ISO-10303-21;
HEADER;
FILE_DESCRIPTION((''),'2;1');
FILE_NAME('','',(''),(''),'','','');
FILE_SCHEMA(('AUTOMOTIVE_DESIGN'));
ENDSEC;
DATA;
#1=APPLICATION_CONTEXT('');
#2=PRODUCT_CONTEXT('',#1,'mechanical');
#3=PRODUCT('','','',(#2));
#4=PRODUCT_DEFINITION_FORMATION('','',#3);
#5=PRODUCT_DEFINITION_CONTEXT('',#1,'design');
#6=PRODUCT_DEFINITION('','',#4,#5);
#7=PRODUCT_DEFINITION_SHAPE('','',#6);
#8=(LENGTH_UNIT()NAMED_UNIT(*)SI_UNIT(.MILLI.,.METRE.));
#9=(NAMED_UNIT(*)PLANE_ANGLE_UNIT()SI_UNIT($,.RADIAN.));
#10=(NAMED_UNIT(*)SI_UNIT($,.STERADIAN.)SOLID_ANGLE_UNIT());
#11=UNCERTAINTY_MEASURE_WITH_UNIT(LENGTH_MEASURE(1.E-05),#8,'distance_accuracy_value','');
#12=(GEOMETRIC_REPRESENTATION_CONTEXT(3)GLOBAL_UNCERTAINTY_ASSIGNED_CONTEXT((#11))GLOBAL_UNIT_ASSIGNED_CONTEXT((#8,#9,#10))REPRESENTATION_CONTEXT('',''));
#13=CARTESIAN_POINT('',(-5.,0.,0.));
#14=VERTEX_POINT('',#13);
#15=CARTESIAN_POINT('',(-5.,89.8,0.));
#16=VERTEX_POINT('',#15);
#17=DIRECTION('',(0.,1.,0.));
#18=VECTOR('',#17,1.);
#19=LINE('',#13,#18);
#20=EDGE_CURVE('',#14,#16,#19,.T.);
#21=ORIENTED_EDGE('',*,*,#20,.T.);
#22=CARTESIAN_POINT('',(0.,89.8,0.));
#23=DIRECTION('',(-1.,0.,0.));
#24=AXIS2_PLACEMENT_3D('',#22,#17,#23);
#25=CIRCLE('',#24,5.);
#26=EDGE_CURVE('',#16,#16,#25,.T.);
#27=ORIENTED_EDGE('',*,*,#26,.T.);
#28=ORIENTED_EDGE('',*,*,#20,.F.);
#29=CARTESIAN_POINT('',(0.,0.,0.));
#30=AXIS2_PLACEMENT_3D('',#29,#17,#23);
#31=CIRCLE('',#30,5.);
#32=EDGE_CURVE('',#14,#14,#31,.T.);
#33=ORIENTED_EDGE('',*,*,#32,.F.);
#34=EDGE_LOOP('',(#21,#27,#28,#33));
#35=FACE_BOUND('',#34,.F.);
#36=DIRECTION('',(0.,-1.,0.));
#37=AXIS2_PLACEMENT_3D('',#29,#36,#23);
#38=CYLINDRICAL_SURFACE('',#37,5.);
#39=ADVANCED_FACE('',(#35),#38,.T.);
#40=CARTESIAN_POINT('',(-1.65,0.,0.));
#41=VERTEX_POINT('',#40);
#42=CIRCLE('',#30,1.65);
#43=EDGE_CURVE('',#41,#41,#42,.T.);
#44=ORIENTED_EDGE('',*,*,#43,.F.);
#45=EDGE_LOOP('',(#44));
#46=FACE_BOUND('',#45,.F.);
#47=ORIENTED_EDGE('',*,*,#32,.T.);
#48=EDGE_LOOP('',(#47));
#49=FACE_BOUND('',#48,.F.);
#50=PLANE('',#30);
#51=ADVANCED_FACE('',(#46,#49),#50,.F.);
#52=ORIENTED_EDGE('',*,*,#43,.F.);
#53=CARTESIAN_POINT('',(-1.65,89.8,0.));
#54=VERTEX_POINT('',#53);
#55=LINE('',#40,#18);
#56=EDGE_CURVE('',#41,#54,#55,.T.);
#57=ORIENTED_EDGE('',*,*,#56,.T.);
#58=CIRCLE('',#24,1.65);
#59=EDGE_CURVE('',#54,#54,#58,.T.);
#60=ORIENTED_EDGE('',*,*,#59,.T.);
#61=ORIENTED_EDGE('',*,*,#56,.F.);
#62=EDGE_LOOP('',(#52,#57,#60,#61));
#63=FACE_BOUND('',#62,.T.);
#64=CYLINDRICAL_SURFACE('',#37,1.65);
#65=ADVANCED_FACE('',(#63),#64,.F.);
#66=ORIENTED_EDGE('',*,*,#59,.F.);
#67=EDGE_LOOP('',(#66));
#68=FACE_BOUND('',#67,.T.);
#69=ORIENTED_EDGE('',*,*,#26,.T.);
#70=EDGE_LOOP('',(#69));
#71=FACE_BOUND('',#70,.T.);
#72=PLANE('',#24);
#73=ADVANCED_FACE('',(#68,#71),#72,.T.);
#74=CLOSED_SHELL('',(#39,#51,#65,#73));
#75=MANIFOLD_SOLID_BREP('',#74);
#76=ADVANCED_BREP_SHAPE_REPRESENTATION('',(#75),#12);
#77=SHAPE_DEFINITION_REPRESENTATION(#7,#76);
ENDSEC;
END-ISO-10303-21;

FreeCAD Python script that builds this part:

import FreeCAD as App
import Part
import Sketcher

V = App.Vector

doc = App.newDocument("Part")
body = doc.addObject("PartDesign::Body", "Body")

sketch1 = doc.addObject("Sketcher::SketchObject", "Sketch")
body.addObject(sketch1)
sketch1.AttachmentSupport = (doc.XZ_Plane, [""])
sketch1.MapMode = "FlatFace"
sketch1.addGeometry(Part.Circle(V(0, 0, 0), V(0, 0, 1), 5), False)
sketch1.addGeometry(Part.Circle(V(0, 0, 0), V(0, 0, 1), 1.6), False)
sketch1.addConstraint(Sketcher.Constraint("Coincident", 0, 3, -1, 1))
sketch1.addConstraint(Sketcher.Constraint("Coincident", 1, 3, -1, 1))
sketch1.addConstraint(Sketcher.Constraint("Diameter", 0, 10.0))
sketch1.addConstraint(Sketcher.Constraint("Diameter", 1, 3.3))
pad1 = doc.addObject("PartDesign::Pad", "Pad")
body.addObject(pad1)
pad1.Profile = sketch1
pad1.Length = 89.8
pad1.Reversed = True

doc.recompute()
